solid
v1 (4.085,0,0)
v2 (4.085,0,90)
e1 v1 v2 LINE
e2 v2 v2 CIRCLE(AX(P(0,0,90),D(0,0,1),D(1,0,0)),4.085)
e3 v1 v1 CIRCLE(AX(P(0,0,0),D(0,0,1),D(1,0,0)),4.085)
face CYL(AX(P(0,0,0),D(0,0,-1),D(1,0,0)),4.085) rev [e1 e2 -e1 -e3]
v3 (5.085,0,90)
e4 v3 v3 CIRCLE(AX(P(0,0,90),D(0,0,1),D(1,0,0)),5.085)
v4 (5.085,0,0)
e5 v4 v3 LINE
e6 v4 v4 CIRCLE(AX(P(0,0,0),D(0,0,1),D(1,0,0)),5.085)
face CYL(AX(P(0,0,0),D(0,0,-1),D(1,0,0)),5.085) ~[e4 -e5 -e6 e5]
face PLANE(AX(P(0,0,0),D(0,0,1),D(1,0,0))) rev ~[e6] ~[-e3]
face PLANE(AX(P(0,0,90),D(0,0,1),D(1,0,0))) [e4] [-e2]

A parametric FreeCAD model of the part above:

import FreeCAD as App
import Part
import Sketcher

doc = App.newDocument("Part")
body = doc.addObject("PartDesign::Body", "Body")

# Sketch on XY plane
sketch1 = body.newObject("Sketcher::SketchObject", "Sketch")
sketch1.AttachmentSupport = (doc.getObject("XY_Plane"), [""])
sketch1.MapMode = "FlatFace"
sketch1.addGeometry([
    Part.Circle(App.Vector(0, 0, 0), App.Vector(0, 0, 1), 5.085),
    Part.Circle(App.Vector(0, 0, 0), App.Vector(0, 0, 1), 4.085),
], False)
sketch1.addConstraint([
    Sketcher.Constraint("Coincident", 0, 3, -1, 1),
    Sketcher.Constraint("Coincident", 1, 3, -1, 1),
    Sketcher.Constraint("Diameter", 0, 10.17),
    Sketcher.Constraint("Diameter", 1, 8.17),
])
pad1 = body.newObject("PartDesign::Pad", "Pad")
pad1.Profile = sketch1
pad1.Length = 90

doc.recompute()
